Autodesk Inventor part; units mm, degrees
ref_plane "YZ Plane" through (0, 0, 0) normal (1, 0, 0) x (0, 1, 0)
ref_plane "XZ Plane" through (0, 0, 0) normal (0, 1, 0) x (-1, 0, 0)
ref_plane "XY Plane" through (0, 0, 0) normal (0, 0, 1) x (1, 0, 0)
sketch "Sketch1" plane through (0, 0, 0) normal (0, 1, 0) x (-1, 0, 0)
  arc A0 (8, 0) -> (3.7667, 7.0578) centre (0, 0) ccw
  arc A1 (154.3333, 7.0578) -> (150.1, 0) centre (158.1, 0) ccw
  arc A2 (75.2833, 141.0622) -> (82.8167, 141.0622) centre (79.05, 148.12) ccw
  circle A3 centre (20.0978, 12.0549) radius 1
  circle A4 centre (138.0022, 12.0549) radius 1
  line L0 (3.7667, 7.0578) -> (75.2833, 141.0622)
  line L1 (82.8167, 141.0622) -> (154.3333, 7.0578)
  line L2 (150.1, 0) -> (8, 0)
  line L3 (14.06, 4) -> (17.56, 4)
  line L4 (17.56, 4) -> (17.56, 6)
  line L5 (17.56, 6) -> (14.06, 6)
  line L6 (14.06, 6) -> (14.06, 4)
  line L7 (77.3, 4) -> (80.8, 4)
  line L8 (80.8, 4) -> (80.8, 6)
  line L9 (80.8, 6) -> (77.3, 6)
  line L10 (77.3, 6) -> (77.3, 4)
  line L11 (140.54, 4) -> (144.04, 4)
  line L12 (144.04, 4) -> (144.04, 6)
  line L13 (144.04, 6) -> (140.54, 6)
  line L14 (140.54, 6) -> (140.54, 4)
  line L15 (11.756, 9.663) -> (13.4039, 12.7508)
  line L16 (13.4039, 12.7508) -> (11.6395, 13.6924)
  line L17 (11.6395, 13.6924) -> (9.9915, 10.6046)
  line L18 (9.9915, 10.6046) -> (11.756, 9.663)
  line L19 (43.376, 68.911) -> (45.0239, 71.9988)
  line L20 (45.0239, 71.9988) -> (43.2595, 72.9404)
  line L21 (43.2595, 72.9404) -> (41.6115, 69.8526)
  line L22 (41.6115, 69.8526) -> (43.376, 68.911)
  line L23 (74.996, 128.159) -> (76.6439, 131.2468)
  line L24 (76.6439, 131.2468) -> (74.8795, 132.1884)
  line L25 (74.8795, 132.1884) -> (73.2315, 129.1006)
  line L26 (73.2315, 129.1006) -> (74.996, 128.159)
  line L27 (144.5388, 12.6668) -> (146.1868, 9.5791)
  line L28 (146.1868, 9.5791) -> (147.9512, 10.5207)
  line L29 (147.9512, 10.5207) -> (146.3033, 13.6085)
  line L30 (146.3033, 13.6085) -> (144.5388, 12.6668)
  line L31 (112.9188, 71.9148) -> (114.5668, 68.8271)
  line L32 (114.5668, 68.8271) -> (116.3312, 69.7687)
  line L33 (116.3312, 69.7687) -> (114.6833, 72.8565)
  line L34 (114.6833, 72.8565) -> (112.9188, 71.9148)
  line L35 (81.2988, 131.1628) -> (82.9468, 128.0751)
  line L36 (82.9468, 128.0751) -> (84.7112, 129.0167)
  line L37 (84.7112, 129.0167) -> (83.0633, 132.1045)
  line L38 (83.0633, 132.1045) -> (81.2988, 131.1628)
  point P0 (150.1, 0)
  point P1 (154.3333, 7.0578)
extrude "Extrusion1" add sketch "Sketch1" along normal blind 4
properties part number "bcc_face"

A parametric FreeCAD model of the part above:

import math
import FreeCAD as App
import Part
import Sketcher
Q = App.Units.Quantity

doc = App.newDocument("Part")
params = doc.addObject("Spreadsheet::Sheet", "Params")
for row, (alias, value) in enumerate([
    ("sketch1_diameter", "2 mm"),
    ("sketch1_radius", "8 mm"),
    ("sketch1_height", "2 mm"),
    ("sketch1_length", "2 mm"),
    ("sketch1_width", "142.1 mm"),
    ("pad1_length", "4 mm"),
], start=1):
    params.set(f"A{row}", alias)
    params.set(f"B{row}", "=" + value)
    params.setAlias(f"B{row}", alias)

body = doc.addObject("PartDesign::Body", "Body")

# Sketch on XZ plane
sketch1 = body.newObject("Sketcher::SketchObject", "Sketch")
sketch1.AttachmentSupport = (doc.getObject("XZ_Plane"), [""])
sketch1.MapMode = "FlatFace"
sketch1.addGeometry([
    Part.ArcOfCircle(Part.Circle(App.Vector(0, 0, 0), App.Vector(0, 0, 1), 8), math.radians(118), math.radians(180)),  # 0
    Part.LineSegment(App.Vector(-8, 0, 0), App.Vector(-150.1, 0, 0)),  # 1
    Part.ArcOfCircle(Part.Circle(App.Vector(-158.1, 0, 0), App.Vector(0, 0, 1), 8), math.radians(0), math.radians(62)),  # 2
    Part.LineSegment(App.Vector(-154.3, 7.1, 0), App.Vector(-82.8, 141.1, 0)),  # 3
    Part.ArcOfCircle(Part.Circle(App.Vector(-79, 148.1, 0), App.Vector(0, 0, 1), 8), math.radians(-118), math.radians(-62)),  # 4
    Part.LineSegment(App.Vector(-75.3, 141.1, 0), App.Vector(-3.8, 7.1, 0)),  # 5
    Part.LineSegment(App.Vector(-17.6, 4, 0), App.Vector(-14.1, 4, 0)),  # 6
    Part.LineSegment(App.Vector(-14.1, 4, 0), App.Vector(-14.1, 6, 0)),  # 7
    Part.LineSegment(App.Vector(-14.1, 6, 0), App.Vector(-17.6, 6, 0)),  # 8
    Part.LineSegment(App.Vector(-17.6, 6, 0), App.Vector(-17.6, 4, 0)),  # 9
    Part.LineSegment(App.Vector(-13.4, 12.8, 0), App.Vector(-11.8, 9.7, 0)),  # 10
    Part.LineSegment(App.Vector(-11.8, 9.7, 0), App.Vector(-10, 10.6, 0)),  # 11
    Part.LineSegment(App.Vector(-10, 10.6, 0), App.Vector(-11.6, 13.7, 0)),  # 12
    Part.LineSegment(App.Vector(-11.6, 13.7, 0), App.Vector(-13.4, 12.8, 0)),  # 13
    Part.Circle(App.Vector(-20.1, 12.1, 0), App.Vector(0, 0, 1), 1),  # 14
    Part.LineSegment(App.Vector(-80.8, 4, 0), App.Vector(-77.3, 4, 0)),  # 15
    Part.LineSegment(App.Vector(-77.3, 4, 0), App.Vector(-77.3, 6, 0)),  # 16
    Part.LineSegment(App.Vector(-77.3, 6, 0), App.Vector(-80.8, 6, 0)),  # 17
    Part.LineSegment(App.Vector(-80.8, 6, 0), App.Vector(-80.8, 4, 0)),  # 18
    Part.LineSegment(App.Vector(-144, 4, 0), App.Vector(-140.5, 4, 0)),  # 19
    Part.LineSegment(App.Vector(-140.5, 4, 0), App.Vector(-140.5, 6, 0)),  # 20
    Part.LineSegment(App.Vector(-140.5, 6, 0), App.Vector(-144, 6, 0)),  # 21
    Part.LineSegment(App.Vector(-144, 6, 0), App.Vector(-144, 4, 0)),  # 22
    Part.Circle(App.Vector(-138, 12.1, 0), App.Vector(0, 0, 1), 1),  # 23
    Part.LineSegment(App.Vector(-146.2, 9.6, 0), App.Vector(-144.5, 12.7, 0)),  # 24
    Part.LineSegment(App.Vector(-144.5, 12.7, 0), App.Vector(-146.3, 13.6, 0)),  # 25
    Part.LineSegment(App.Vector(-146.3, 13.6, 0), App.Vector(-148, 10.5, 0)),  # 26
    Part.LineSegment(App.Vector(-148, 10.5, 0), App.Vector(-146.2, 9.6, 0)),  # 27
    Part.LineSegment(App.Vector(-45, 72, 0), App.Vector(-43.4, 68.9, 0)),  # 28
    Part.LineSegment(App.Vector(-43.4, 68.9, 0), App.Vector(-41.6, 69.9, 0)),  # 29
    Part.LineSegment(App.Vector(-41.6, 69.9, 0), App.Vector(-43.3, 72.9, 0)),  # 30
    Part.LineSegment(App.Vector(-43.3, 72.9, 0), App.Vector(-45, 72, 0)),  # 31
    Part.LineSegment(App.Vector(-76.6, 131.2, 0), App.Vector(-75, 128.2, 0)),  # 32
    Part.LineSegment(App.Vector(-75, 128.2, 0), App.Vector(-73.2, 129.1, 0)),  # 33
    Part.LineSegment(App.Vector(-73.2, 129.1, 0), App.Vector(-74.9, 132.2, 0)),  # 34
    Part.LineSegment(App.Vector(-74.9, 132.2, 0), App.Vector(-76.6, 131.2, 0)),  # 35
    Part.LineSegment(App.Vector(-114.6, 68.8, 0), App.Vector(-112.9, 71.9, 0)),  # 36
    Part.LineSegment(App.Vector(-112.9, 71.9, 0), App.Vector(-114.7, 72.9, 0)),  # 37
    Part.LineSegment(App.Vector(-114.7, 72.9, 0), App.Vector(-116.3, 69.8, 0)),  # 38
    Part.LineSegment(App.Vector(-116.3, 69.8, 0), App.Vector(-114.6, 68.8, 0)),  # 39
    Part.LineSegment(App.Vector(-82.9, 128.1, 0), App.Vector(-81.3, 131.2, 0)),  # 40
    Part.LineSegment(App.Vector(-81.3, 131.2, 0), App.Vector(-83.1, 132.1, 0)),  # 41
    Part.LineSegment(App.Vector(-83.1, 132.1, 0), App.Vector(-84.7, 129, 0)),  # 42
    Part.LineSegment(App.Vector(-84.7, 129, 0), App.Vector(-82.9, 128.1, 0)),  # 43
], False)
sketch1.addConstraint([
    Sketcher.Constraint("Coincident", 0, 2, 1, 1),
    Sketcher.Constraint("Coincident", 1, 2, 2, 1),
    Sketcher.Constraint("Coincident", 2, 2, 3, 1),
    Sketcher.Constraint("Coincident", 3, 2, 4, 1),
    Sketcher.Constraint("Coincident", 4, 2, 5, 1),
    Sketcher.Constraint("Coincident", 5, 2, 0, 1),
    Sketcher.Constraint("Coincident", 6, 2, 7, 1),
    Sketcher.Constraint("Coincident", 7, 2, 8, 1),
    Sketcher.Constraint("Coincident", 8, 2, 9, 1),
    Sketcher.Constraint("Coincident", 9, 2, 6, 1),
    Sketcher.Constraint("Coincident", 10, 2, 11, 1),
    Sketcher.Constraint("Coincident", 11, 2, 12, 1),
    Sketcher.Constraint("Coincident", 12, 2, 13, 1),
    Sketcher.Constraint("Coincident", 13, 2, 10, 1),
    Sketcher.Constraint("Coincident", 15, 2, 16, 1),
    Sketcher.Constraint("Coincident", 16, 2, 17, 1),
    Sketcher.Constraint("Coincident", 17, 2, 18, 1),
    Sketcher.Constraint("Coincident", 18, 2, 15, 1),
    Sketcher.Constraint("Coincident", 19, 2, 20, 1),
    Sketcher.Constraint("Coincident", 20, 2, 21, 1),
    Sketcher.Constraint("Coincident", 21, 2, 22, 1),
    Sketcher.Constraint("Coincident", 22, 2, 19, 1),
    Sketcher.Constraint("Coincident", 24, 2, 25, 1),
    Sketcher.Constraint("Coincident", 25, 2, 26, 1),
    Sketcher.Constraint("Coincident", 26, 2, 27, 1),
    Sketcher.Constraint("Coincident", 27, 2, 24, 1),
    Sketcher.Constraint("Coincident", 28, 2, 29, 1),
    Sketcher.Constraint("Coincident", 29, 2, 30, 1),
    Sketcher.Constraint("Coincident", 30, 2, 31, 1),
    Sketcher.Constraint("Coincident", 31, 2, 28, 1),
    Sketcher.Constraint("Coincident", 32, 2, 33, 1),
    Sketcher.Constraint("Coincident", 33, 2, 34, 1),
    Sketcher.Constraint("Coincident", 34, 2, 35, 1),
    Sketcher.Constraint("Coincident", 35, 2, 32, 1),
    Sketcher.Constraint("Coincident", 36, 2, 37, 1),
    Sketcher.Constraint("Coincident", 37, 2, 38, 1),
    Sketcher.Constraint("Coincident", 38, 2, 39, 1),
    Sketcher.Constraint("Coincident", 39, 2, 36, 1),
    Sketcher.Constraint("Coincident", 40, 2, 41, 1),
    Sketcher.Constraint("Coincident", 41, 2, 42, 1),
    Sketcher.Constraint("Coincident", 42, 2, 43, 1),
    Sketcher.Constraint("Coincident", 43, 2, 40, 1),
    Sketcher.Constraint("Horizontal", 1),
    Sketcher.Constraint("Horizontal", 6),
    Sketcher.Constraint("Vertical", 7),
    Sketcher.Constraint("Horizontal", 8),
    Sketcher.Constraint("Vertical", 9),
    Sketcher.Constraint("Horizontal", 15),
    Sketcher.Constraint("Vertical", 16),
    Sketcher.Constraint("Horizontal", 17),
    Sketcher.Constraint("Vertical", 18),
    Sketcher.Constraint("Horizontal", 19),
    Sketcher.Constraint("Vertical", 20),
    Sketcher.Constraint("Horizontal", 21),
    Sketcher.Constraint("Vertical", 22),
    Sketcher.Constraint("Coincident", 0, 3, -1, 1),
    Sketcher.Constraint("Equal", 0, 2),
    Sketcher.Constraint("Equal", 2, 4),
    Sketcher.Constraint("Equal", 14, 23),
    Sketcher.Constraint("PointOnObject", 2, 3, -1),
    Sketcher.Constraint("PointOnObject", 0, 2, -1),
    Sketcher.Constraint("Parallel", 5, 10),
    Sketcher.Constraint("Perpendicular", 10, 11),
    Sketcher.Constraint("Perpendicular", 11, 12),
    Sketcher.Constraint("Perpendicular", 12, 13),
    Sketcher.Constraint("Parallel", 3, 24),
    Sketcher.Constraint("Perpendicular", 24, 25),
    Sketcher.Constraint("Perpendicular", 25, 26),
    Sketcher.Constraint("Perpendicular", 26, 27),
    Sketcher.Constraint("Perpendicular", 13, 28),
    Sketcher.Constraint("Perpendicular", 28, 29),
    Sketcher.Constraint("Perpendicular", 29, 30),
    Sketcher.Constraint("Perpendicular", 30, 31),
    Sketcher.Constraint("Perpendicular", 31, 32),
    Sketcher.Constraint("Perpendicular", 32, 33),
    Sketcher.Constraint("Perpendicular", 33, 34),
    Sketcher.Constraint("Perpendicular", 34, 35),
    Sketcher.Constraint("Perpendicular", 27, 36),
    Sketcher.Constraint("Perpendicular", 36, 37),
    Sketcher.Constraint("Perpendicular", 37, 38),
    Sketcher.Constraint("Perpendicular", 38, 39),
    Sketcher.Constraint("Perpendicular", 39, 40),
    Sketcher.Constraint("Perpendicular", 40, 41),
    Sketcher.Constraint("Perpendicular", 41, 42),
    Sketcher.Constraint("Perpendicular", 42, 43),
    Sketcher.Constraint("Horizontal", 14, 3, 23, 3),
    Sketcher.Constraint("Horizontal", 3, 2, 4, 2),
    Sketcher.Constraint("Horizontal", 2, 2, 5, 2),
    Sketcher.Constraint("Horizontal", 9, 2, 15, 2),
    Sketcher.Constraint("Horizontal", 8, 2, 16, 2),
    Sketcher.Constraint("Horizontal", 18, 2, 19, 2),
    Sketcher.Constraint("Horizontal", 17, 2, 20, 2),
    Sketcher.Constraint("Equal", 8, 15),
    Sketcher.Constraint("Equal", 17, 19),
    Sketcher.Constraint("Equal", 3, 5),
    Sketcher.Constraint("Equal", 12, 24),
    Sketcher.Constraint("Equal", 13, 25),
    Sketcher.Constraint("Equal", 26, 28),
    Sketcher.Constraint("Equal", 27, 29),
    Sketcher.Constraint("Equal", 30, 32),
    Sketcher.Constraint("Equal", 31, 33),
    Sketcher.Constraint("Equal", 34, 36),
    Sketcher.Constraint("Equal", 35, 37),
    Sketcher.Constraint("Equal", 38, 40),
    Sketcher.Constraint("Equal", 39, 41),
    Sketcher.Constraint("Diameter", 14, Q("2 mm")),
    Sketcher.Constraint("Radius", 0, Q("8 mm")),
    Sketcher.Constraint("DistanceY", 7, 1, 7, 2, Q("2 mm")),
    Sketcher.Constraint("Distance", 11, Q("2 mm")),
    Sketcher.Constraint("DistanceX", 1, 2, 1, 1, Q("142.1 mm")),
    Sketcher.Constraint("DistanceX", 6, 1, 6, 2, Q("3.5 mm")),
    Sketcher.Constraint("DistanceY", -1, 1, 6, 2, Q("4 mm")),
    Sketcher.Constraint("Distance", 10, Q("3.5 mm")),
    Sketcher.Constraint("DistanceX", 15, 2, -1, 1, Q("77.3 mm")),
    Sketcher.Constraint("Angle", 12, Q("118.0894 deg")),
    Sketcher.Constraint("DistanceY", -1, 1, 4, 3, Q("148.12 mm")),
    Sketcher.Constraint("DistanceX", 6, 2, -1, 1, Q("14.06 mm")),
    Sketcher.Constraint("DistanceX", 19, 2, -1, 1, Q("140.54 mm")),
    Sketcher.Constraint("DistanceX", 2, 2, 4, 2, Q("79.05 mm")),
    Sketcher.Constraint("DistanceX", 28, 2, 10, 2, Q("31.62 mm")),
    Sketcher.Constraint("DistanceY", 23, 3, 36, 2, Q("59.86 mm")),
    Sketcher.Constraint("DistanceX", 24, 2, 36, 2, Q("31.62 mm")),
    Sketcher.Constraint("DistanceY", 42, 2, 35, 2, Q("2.23 mm")),
    Sketcher.Constraint("DistanceY", -1, 1, 14, 3, Q("12.055 mm")),
    Sketcher.Constraint("DistanceX", 10, 2, -1, 1, Q("11.756 mm")),
    Sketcher.Constraint("DistanceY", -1, 1, 10, 2, Q("9.663 mm")),
    Sketcher.Constraint("DistanceY", -1, 1, 27, 2, Q("9.579 mm")),
    Sketcher.Constraint("DistanceY", -1, 1, 28, 2, Q("68.911 mm")),
    Sketcher.Constraint("DistanceX", 32, 2, -1, 1, Q("74.996 mm")),
    Sketcher.Constraint("DistanceY", -1, 1, 32, 2, Q("128.159 mm")),
    Sketcher.Constraint("DistanceX", 2, 2, 23, 3, Q("16.331 mm")),
    Sketcher.Constraint("DistanceX", 3, 2, 14, 3, Q("62.719 mm")),
    Sketcher.Constraint("DistanceX", 25, 2, 23, 3, Q("8.301 mm")),
    Sketcher.Constraint("DistanceX", 40, 2, 35, 2, Q("4.655 mm")),
])
sketch1.setExpression("Constraints[105]", "Params.sketch1_diameter")
sketch1.setExpression("Constraints[106]", "Params.sketch1_radius")
sketch1.setExpression("Constraints[107]", "Params.sketch1_height")
sketch1.setExpression("Constraints[108]", "Params.sketch1_length")
sketch1.setExpression("Constraints[109]", "Params.sketch1_width")
pad1 = body.newObject("PartDesign::Pad", "Pad")
pad1.Profile = sketch1
pad1.setExpression("Length", "Params.pad1_length")
pad1.Reversed = True

doc.recompute()
